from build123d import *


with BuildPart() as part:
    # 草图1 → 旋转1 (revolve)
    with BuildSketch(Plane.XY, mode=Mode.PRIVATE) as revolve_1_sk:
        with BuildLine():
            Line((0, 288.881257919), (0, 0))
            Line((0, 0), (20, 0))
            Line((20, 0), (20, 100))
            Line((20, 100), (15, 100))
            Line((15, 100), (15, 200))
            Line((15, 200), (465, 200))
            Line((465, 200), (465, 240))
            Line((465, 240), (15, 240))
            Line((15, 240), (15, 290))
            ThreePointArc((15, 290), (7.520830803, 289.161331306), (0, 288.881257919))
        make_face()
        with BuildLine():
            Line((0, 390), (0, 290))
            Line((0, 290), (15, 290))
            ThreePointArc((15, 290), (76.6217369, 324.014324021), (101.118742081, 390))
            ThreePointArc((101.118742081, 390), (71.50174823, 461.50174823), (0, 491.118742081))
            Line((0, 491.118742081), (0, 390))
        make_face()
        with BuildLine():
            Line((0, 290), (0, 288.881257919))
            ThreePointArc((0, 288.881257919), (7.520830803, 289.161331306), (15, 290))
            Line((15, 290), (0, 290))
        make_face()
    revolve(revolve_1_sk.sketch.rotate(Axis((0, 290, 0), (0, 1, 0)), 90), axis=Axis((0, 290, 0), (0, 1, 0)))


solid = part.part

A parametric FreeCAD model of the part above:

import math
import FreeCAD as App
import Part
import Sketcher
Q = App.Units.Quantity

doc = App.newDocument("Part")
body = doc.addObject("PartDesign::Body", "Body")

sketch1 = body.newObject("Sketcher::SketchObject", "Sketch")
sketch1.AttachmentSupport = (doc.getObject("XY_Plane"), [""])
sketch1.MapMode = "FlatFace"
sketch1.addGeometry([
    Part.LineSegment(App.Vector(0, 0, 0), App.Vector(20, 0, 0)),
    Part.LineSegment(App.Vector(20, 0, 0), App.Vector(20, 100, 0)),
    Part.LineSegment(App.Vector(20, 100, 0), App.Vector(15, 100, 0)),
    Part.LineSegment(App.Vector(15, 100, 0), App.Vector(15, 200, 0)),
    Part.LineSegment(App.Vector(15, 200, 0), App.Vector(465, 200, 0)),
    Part.LineSegment(App.Vector(465, 200, 0), App.Vector(465, 240, 0)),
    Part.LineSegment(App.Vector(465, 240, 0), App.Vector(15, 240, 0)),
    Part.LineSegment(App.Vector(15, 240, 0), App.Vector(15, 290, 0)),
    Part.ArcOfCircle(Part.Circle(App.Vector(0, 390, 0), App.Vector(0, 0, 1), 101), math.radians(-81), math.radians(0)),
    Part.ArcOfCircle(Part.Circle(App.Vector(0, 390, 0), App.Vector(0, 0, 1), 101), math.radians(0), math.radians(90)),
    Part.LineSegment(App.Vector(0, 491, 0), App.Vector(0, 0, 0)),
], False)
sketch1.addConstraint([
    Sketcher.Constraint("Coincident", 0, 2, 1, 1),
    Sketcher.Constraint("Coincident", 1, 2, 2, 1),
    Sketcher.Constraint("Coincident", 2, 2, 3, 1),
    Sketcher.Constraint("Coincident", 3, 2, 4, 1),
    Sketcher.Constraint("Coincident", 4, 2, 5, 1),
    Sketcher.Constraint("Coincident", 5, 2, 6, 1),
    Sketcher.Constraint("Coincident", 6, 2, 7, 1),
    Sketcher.Constraint("Coincident", 7, 2, 8, 1),
    Sketcher.Constraint("Tangent", 8, 2, 9, 1),
    Sketcher.Constraint("Coincident", 9, 2, 10, 1),
    Sketcher.Constraint("Coincident", 10, 2, 0, 1),
    Sketcher.Constraint("Horizontal", 0),
    Sketcher.Constraint("Vertical", 1),
    Sketcher.Constraint("Horizontal", 2),
    Sketcher.Constraint("Vertical", 3),
    Sketcher.Constraint("Horizontal", 4),
    Sketcher.Constraint("Vertical", 5),
    Sketcher.Constraint("Horizontal", 6),
    Sketcher.Constraint("Vertical", 7),
    Sketcher.Constraint("Vertical", 10),
    Sketcher.Constraint("Coincident", 10, 2, -1, 1),
    Sketcher.Constraint("Equal", 8, 9),
    Sketcher.Constraint("PointOnObject", 8, 3, -2),
    Sketcher.Constraint("Horizontal", 9, 3, 8, 2),
    Sketcher.Constraint("Vertical", 3, 2, 6, 2),
    Sketcher.Constraint("Equal", 1, 3),
    Sketcher.Constraint("DistanceX", 0, 1, 0, 2, Q("20 mm")),
    Sketcher.Constraint("DistanceX", 2, 2, 2, 1, Q("5 mm")),
    Sketcher.Constraint("DistanceX", 4, 1, 4, 2, Q("450 mm")),
    Sketcher.Constraint("DistanceY", 1, 1, 1, 2, Q("100 mm")),
    Sketcher.Constraint("DistanceY", 5, 1, 5, 2, Q("40 mm")),
    Sketcher.Constraint("DistanceY", 7, 1, 7, 2, Q("50 mm")),
    Sketcher.Constraint("DistanceY", -1, 1, 8, 3, Q("390 mm")),
])
revolution = body.newObject("PartDesign::Revolution", "Revolution")
revolution.Profile = sketch1
revolution.ReferenceAxis = (sketch1, ["V_Axis"])
revolution.Angle = 360

doc.recompute()
